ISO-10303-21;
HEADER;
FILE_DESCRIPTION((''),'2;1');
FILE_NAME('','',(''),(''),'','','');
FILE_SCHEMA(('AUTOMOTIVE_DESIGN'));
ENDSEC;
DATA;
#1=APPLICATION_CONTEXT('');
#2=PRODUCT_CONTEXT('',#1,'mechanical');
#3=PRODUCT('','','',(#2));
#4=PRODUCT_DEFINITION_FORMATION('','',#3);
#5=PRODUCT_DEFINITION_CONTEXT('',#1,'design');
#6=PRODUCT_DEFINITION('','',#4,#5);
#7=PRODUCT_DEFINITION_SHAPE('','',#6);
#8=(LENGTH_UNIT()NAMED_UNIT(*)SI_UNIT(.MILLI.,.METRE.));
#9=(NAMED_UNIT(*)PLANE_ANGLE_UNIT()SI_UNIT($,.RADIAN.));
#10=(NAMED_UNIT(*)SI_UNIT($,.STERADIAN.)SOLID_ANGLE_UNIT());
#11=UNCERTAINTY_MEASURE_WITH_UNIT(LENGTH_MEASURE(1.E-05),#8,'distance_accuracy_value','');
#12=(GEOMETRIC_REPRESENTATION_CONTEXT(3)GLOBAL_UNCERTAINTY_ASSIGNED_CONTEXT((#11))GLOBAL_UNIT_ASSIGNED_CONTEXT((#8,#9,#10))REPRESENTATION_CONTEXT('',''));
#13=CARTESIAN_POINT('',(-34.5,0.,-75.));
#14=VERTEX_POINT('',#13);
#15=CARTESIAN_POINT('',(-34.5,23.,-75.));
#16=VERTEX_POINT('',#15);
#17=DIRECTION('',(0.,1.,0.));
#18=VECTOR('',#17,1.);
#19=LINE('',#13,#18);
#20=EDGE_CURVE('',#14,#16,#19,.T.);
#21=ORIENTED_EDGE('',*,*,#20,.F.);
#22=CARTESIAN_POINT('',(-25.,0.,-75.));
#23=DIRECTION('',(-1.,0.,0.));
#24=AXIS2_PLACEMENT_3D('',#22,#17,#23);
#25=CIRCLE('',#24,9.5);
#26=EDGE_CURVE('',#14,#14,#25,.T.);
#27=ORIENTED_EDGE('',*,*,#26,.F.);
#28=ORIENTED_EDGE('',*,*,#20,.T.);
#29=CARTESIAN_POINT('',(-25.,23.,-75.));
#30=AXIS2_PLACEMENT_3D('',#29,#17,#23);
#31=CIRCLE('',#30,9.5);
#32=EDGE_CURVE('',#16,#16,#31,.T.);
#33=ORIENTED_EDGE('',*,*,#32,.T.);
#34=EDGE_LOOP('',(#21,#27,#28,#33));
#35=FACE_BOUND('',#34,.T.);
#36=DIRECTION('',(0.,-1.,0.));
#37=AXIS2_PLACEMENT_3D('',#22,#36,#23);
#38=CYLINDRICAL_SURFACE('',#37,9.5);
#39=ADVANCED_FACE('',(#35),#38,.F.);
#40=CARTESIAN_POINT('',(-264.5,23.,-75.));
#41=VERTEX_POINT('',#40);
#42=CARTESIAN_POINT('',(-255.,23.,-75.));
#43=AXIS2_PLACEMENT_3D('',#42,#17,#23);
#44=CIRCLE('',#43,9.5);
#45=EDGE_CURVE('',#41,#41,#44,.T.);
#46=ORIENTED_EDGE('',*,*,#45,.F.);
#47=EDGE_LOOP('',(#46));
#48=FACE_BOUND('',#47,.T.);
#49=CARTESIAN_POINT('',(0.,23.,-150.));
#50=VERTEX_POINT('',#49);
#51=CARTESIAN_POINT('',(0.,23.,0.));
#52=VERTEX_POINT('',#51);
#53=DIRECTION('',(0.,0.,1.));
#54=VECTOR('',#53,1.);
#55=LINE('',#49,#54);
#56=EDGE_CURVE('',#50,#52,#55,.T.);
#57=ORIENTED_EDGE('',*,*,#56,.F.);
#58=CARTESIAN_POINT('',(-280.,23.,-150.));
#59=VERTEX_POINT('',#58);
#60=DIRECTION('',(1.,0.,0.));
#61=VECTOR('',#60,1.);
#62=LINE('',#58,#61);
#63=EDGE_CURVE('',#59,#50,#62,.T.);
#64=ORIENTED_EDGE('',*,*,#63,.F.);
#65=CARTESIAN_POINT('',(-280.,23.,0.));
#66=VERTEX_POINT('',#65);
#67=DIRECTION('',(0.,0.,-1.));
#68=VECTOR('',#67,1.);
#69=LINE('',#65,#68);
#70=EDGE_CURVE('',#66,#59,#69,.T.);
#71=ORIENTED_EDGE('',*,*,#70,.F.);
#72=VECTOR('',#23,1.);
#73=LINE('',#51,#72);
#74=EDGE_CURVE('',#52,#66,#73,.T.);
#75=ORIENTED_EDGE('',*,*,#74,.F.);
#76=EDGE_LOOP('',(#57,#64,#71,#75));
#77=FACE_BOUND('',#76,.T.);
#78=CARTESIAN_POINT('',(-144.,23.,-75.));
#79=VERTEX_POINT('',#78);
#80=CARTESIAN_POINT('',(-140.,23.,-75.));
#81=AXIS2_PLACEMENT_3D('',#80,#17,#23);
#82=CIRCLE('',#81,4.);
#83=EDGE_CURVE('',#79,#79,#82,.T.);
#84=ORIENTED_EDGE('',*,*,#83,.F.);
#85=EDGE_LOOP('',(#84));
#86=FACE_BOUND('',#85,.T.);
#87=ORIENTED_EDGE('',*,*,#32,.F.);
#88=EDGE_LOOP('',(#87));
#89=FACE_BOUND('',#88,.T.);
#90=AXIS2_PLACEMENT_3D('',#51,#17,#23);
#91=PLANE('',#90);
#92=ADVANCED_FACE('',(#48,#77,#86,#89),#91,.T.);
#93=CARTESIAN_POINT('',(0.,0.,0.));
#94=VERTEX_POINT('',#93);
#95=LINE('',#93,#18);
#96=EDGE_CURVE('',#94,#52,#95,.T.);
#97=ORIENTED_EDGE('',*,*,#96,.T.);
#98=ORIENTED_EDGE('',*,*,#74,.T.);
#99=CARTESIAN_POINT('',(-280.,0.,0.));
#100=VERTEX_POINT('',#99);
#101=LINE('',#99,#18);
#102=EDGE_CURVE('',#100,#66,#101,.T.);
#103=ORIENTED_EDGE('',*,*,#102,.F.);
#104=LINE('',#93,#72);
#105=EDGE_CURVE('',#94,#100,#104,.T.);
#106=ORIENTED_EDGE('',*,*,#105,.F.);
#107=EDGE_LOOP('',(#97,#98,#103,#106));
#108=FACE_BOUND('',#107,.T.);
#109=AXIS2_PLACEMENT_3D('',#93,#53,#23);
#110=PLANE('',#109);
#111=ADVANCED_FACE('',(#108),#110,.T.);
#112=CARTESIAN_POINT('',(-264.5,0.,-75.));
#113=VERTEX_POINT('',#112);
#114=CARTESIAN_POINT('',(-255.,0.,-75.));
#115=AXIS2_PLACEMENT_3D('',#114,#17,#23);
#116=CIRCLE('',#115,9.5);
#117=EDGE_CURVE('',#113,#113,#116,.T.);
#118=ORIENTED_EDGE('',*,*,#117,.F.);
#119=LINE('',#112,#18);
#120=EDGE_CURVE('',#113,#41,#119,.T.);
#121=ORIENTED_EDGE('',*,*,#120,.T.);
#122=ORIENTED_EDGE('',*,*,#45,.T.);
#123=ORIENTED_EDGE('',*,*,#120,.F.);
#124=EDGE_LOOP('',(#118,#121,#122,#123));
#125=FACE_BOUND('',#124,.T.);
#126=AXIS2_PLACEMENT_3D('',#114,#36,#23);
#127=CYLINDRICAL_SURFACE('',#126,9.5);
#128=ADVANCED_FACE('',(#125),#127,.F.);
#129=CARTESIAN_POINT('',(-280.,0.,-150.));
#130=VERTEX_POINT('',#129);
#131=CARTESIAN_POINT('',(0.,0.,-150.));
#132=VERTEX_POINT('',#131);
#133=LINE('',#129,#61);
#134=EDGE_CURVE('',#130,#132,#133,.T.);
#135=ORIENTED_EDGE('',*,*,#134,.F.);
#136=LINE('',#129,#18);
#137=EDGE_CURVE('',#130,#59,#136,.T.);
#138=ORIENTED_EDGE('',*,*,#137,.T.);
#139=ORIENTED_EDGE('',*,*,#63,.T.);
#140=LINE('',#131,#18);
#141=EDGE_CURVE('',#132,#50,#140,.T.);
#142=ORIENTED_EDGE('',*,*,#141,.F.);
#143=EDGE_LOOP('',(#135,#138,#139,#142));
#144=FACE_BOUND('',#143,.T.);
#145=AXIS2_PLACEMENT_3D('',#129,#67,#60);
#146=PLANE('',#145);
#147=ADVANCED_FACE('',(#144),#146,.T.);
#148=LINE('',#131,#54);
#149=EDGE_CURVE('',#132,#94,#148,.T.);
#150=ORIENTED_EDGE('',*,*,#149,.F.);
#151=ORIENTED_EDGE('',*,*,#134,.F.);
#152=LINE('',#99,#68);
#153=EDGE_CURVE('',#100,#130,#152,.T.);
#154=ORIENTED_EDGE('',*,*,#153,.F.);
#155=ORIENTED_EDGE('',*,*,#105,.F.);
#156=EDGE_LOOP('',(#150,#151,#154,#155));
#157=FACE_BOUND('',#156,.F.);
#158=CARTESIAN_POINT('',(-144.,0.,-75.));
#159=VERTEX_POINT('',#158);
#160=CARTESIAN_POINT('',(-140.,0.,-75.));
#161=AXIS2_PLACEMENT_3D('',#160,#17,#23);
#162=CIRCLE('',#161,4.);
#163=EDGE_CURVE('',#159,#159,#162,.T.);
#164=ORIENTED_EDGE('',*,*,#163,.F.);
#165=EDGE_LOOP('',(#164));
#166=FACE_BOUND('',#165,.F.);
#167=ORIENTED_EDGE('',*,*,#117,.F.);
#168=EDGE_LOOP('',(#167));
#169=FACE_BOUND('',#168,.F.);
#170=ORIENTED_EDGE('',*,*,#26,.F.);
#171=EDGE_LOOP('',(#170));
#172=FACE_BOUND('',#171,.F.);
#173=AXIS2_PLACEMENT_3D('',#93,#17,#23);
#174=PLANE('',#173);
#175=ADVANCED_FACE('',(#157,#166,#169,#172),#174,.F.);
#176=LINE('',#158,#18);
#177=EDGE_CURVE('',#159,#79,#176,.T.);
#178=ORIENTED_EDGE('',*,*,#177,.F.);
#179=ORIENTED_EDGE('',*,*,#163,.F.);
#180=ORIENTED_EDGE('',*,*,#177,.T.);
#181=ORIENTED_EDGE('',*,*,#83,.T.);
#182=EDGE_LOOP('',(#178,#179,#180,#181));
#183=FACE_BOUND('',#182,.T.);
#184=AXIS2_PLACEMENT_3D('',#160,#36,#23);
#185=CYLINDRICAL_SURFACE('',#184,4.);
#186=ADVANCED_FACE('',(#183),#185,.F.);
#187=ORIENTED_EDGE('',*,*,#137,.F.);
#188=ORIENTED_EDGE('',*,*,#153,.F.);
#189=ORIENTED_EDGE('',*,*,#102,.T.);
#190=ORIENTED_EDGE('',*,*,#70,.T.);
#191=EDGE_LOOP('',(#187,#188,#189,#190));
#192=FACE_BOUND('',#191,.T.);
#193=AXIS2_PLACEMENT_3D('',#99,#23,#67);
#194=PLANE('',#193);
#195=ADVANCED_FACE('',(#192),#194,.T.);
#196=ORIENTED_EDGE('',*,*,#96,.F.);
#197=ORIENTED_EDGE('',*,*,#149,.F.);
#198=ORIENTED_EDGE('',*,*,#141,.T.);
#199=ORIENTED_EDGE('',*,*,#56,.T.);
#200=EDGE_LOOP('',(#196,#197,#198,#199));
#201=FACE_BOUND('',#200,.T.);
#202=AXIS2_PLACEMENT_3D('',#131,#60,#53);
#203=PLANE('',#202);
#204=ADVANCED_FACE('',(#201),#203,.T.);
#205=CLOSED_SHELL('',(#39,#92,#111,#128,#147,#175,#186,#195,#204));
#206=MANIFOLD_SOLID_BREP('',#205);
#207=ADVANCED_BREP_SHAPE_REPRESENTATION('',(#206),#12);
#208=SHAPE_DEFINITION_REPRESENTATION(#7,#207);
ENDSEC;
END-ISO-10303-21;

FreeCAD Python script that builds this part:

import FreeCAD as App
import Part
import Sketcher

V = App.Vector


def add_polygon(sketch, points):
    """Adds a closed chain of lines whose ends are joined by coincident constraints."""
    first, n = sketch.GeometryCount, len(points)
    for a, b in zip(points, points[1:] + points[:1]):
        sketch.addGeometry(Part.LineSegment(App.Vector(*a, 0), App.Vector(*b, 0)), False)
    for i in range(n):
        sketch.addConstraint(Sketcher.Constraint("Coincident", first + i, 2, first + (i + 1) % n, 1))

doc = App.newDocument("Part")
body = doc.addObject("PartDesign::Body", "Body")

# Sketch on XZ plane
sketch1 = body.newObject("Sketcher::SketchObject", "Sketch")
sketch1.AttachmentSupport = (doc.getObject("XZ_Plane"), [""])
sketch1.MapMode = "FlatFace"
add_polygon(sketch1, [(-280, 0), (0, 0), (0, -150), (-280, -150)])  # lines 0-3
sketch1.addGeometry(Part.Circle(V(-25, -75, 0), V(0, 0, 1), 9.5), False)  # 4
sketch1.addGeometry(Part.Circle(V(-140, -75, 0), V(0, 0, 1), 4), False)  # 5
sketch1.addGeometry(Part.Circle(V(-255, -75, 0), V(0, 0, 1), 9.5), False)  # 6
sketch1.addConstraint([
    Sketcher.Constraint("Horizontal", 0),
    Sketcher.Constraint("Vertical", 1),
    Sketcher.Constraint("Horizontal", 2),
    Sketcher.Constraint("Vertical", 3),
    Sketcher.Constraint("Coincident", 0, 2, -1, 1),
    Sketcher.Constraint("Equal", 4, 6),
    Sketcher.Constraint("Horizontal", 4, 3, 5, 3),
    Sketcher.Constraint("Horizontal", 5, 3, 6, 3),
    Sketcher.Constraint("Diameter", 4, 19.0),
    Sketcher.Constraint("Diameter", 5, 8.0),
    Sketcher.Constraint("DistanceX", 0, 1, 0, 2, 280.0),
    Sketcher.Constraint("DistanceY", 1, 2, 1, 1, 150.0),
    Sketcher.Constraint("DistanceX", 5, 3, 4, 3, 115.0),
    Sketcher.Constraint("DistanceX", 6, 3, 5, 3, 115.0),
    Sketcher.Constraint("DistanceX", 4, 3, -1, 1, 25.0),
    Sketcher.Constraint("DistanceY", 4, 3, -1, 1, 75.0),
])
pad1 = body.newObject("PartDesign::Pad", "Pad")
pad1.Profile = sketch1
pad1.Length = 23
pad1.Reversed = True

doc.recompute()
